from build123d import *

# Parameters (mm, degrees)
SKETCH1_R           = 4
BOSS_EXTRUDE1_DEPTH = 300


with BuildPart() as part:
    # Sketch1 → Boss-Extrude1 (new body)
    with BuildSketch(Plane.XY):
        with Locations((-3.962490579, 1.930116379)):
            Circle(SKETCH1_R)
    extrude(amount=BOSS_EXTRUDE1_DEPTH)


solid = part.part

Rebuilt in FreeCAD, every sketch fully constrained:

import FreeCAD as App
import Part
import Sketcher

V = App.Vector
Q = App.Units.Quantity

doc = App.newDocument("Part")
body = doc.addObject("PartDesign::Body", "Body")

# Sketch on XY plane
sketch1 = doc.addObject("Sketcher::SketchObject", "Sketch")
body.addObject(sketch1)
sketch1.AttachmentSupport = (doc.XY_Plane, [""])
sketch1.MapMode = "FlatFace"
sketch1.addGeometry(Part.Circle(V(-4, 1.9, 0), V(0, 0, 1), 4), False)
sketch1.addConstraint(Sketcher.Constraint("Diameter", 0, Q("8 mm")))
sketch1.addConstraint(Sketcher.Constraint("DistanceX", 0, 3, -1, 1, Q("3.962491 mm")))
sketch1.addConstraint(Sketcher.Constraint("DistanceY", -1, 1, 0, 3, Q("1.930116 mm")))
pad1 = doc.addObject("PartDesign::Pad", "Pad")
body.addObject(pad1)
pad1.Profile = sketch1
pad1.Length = 300

doc.recompute()
